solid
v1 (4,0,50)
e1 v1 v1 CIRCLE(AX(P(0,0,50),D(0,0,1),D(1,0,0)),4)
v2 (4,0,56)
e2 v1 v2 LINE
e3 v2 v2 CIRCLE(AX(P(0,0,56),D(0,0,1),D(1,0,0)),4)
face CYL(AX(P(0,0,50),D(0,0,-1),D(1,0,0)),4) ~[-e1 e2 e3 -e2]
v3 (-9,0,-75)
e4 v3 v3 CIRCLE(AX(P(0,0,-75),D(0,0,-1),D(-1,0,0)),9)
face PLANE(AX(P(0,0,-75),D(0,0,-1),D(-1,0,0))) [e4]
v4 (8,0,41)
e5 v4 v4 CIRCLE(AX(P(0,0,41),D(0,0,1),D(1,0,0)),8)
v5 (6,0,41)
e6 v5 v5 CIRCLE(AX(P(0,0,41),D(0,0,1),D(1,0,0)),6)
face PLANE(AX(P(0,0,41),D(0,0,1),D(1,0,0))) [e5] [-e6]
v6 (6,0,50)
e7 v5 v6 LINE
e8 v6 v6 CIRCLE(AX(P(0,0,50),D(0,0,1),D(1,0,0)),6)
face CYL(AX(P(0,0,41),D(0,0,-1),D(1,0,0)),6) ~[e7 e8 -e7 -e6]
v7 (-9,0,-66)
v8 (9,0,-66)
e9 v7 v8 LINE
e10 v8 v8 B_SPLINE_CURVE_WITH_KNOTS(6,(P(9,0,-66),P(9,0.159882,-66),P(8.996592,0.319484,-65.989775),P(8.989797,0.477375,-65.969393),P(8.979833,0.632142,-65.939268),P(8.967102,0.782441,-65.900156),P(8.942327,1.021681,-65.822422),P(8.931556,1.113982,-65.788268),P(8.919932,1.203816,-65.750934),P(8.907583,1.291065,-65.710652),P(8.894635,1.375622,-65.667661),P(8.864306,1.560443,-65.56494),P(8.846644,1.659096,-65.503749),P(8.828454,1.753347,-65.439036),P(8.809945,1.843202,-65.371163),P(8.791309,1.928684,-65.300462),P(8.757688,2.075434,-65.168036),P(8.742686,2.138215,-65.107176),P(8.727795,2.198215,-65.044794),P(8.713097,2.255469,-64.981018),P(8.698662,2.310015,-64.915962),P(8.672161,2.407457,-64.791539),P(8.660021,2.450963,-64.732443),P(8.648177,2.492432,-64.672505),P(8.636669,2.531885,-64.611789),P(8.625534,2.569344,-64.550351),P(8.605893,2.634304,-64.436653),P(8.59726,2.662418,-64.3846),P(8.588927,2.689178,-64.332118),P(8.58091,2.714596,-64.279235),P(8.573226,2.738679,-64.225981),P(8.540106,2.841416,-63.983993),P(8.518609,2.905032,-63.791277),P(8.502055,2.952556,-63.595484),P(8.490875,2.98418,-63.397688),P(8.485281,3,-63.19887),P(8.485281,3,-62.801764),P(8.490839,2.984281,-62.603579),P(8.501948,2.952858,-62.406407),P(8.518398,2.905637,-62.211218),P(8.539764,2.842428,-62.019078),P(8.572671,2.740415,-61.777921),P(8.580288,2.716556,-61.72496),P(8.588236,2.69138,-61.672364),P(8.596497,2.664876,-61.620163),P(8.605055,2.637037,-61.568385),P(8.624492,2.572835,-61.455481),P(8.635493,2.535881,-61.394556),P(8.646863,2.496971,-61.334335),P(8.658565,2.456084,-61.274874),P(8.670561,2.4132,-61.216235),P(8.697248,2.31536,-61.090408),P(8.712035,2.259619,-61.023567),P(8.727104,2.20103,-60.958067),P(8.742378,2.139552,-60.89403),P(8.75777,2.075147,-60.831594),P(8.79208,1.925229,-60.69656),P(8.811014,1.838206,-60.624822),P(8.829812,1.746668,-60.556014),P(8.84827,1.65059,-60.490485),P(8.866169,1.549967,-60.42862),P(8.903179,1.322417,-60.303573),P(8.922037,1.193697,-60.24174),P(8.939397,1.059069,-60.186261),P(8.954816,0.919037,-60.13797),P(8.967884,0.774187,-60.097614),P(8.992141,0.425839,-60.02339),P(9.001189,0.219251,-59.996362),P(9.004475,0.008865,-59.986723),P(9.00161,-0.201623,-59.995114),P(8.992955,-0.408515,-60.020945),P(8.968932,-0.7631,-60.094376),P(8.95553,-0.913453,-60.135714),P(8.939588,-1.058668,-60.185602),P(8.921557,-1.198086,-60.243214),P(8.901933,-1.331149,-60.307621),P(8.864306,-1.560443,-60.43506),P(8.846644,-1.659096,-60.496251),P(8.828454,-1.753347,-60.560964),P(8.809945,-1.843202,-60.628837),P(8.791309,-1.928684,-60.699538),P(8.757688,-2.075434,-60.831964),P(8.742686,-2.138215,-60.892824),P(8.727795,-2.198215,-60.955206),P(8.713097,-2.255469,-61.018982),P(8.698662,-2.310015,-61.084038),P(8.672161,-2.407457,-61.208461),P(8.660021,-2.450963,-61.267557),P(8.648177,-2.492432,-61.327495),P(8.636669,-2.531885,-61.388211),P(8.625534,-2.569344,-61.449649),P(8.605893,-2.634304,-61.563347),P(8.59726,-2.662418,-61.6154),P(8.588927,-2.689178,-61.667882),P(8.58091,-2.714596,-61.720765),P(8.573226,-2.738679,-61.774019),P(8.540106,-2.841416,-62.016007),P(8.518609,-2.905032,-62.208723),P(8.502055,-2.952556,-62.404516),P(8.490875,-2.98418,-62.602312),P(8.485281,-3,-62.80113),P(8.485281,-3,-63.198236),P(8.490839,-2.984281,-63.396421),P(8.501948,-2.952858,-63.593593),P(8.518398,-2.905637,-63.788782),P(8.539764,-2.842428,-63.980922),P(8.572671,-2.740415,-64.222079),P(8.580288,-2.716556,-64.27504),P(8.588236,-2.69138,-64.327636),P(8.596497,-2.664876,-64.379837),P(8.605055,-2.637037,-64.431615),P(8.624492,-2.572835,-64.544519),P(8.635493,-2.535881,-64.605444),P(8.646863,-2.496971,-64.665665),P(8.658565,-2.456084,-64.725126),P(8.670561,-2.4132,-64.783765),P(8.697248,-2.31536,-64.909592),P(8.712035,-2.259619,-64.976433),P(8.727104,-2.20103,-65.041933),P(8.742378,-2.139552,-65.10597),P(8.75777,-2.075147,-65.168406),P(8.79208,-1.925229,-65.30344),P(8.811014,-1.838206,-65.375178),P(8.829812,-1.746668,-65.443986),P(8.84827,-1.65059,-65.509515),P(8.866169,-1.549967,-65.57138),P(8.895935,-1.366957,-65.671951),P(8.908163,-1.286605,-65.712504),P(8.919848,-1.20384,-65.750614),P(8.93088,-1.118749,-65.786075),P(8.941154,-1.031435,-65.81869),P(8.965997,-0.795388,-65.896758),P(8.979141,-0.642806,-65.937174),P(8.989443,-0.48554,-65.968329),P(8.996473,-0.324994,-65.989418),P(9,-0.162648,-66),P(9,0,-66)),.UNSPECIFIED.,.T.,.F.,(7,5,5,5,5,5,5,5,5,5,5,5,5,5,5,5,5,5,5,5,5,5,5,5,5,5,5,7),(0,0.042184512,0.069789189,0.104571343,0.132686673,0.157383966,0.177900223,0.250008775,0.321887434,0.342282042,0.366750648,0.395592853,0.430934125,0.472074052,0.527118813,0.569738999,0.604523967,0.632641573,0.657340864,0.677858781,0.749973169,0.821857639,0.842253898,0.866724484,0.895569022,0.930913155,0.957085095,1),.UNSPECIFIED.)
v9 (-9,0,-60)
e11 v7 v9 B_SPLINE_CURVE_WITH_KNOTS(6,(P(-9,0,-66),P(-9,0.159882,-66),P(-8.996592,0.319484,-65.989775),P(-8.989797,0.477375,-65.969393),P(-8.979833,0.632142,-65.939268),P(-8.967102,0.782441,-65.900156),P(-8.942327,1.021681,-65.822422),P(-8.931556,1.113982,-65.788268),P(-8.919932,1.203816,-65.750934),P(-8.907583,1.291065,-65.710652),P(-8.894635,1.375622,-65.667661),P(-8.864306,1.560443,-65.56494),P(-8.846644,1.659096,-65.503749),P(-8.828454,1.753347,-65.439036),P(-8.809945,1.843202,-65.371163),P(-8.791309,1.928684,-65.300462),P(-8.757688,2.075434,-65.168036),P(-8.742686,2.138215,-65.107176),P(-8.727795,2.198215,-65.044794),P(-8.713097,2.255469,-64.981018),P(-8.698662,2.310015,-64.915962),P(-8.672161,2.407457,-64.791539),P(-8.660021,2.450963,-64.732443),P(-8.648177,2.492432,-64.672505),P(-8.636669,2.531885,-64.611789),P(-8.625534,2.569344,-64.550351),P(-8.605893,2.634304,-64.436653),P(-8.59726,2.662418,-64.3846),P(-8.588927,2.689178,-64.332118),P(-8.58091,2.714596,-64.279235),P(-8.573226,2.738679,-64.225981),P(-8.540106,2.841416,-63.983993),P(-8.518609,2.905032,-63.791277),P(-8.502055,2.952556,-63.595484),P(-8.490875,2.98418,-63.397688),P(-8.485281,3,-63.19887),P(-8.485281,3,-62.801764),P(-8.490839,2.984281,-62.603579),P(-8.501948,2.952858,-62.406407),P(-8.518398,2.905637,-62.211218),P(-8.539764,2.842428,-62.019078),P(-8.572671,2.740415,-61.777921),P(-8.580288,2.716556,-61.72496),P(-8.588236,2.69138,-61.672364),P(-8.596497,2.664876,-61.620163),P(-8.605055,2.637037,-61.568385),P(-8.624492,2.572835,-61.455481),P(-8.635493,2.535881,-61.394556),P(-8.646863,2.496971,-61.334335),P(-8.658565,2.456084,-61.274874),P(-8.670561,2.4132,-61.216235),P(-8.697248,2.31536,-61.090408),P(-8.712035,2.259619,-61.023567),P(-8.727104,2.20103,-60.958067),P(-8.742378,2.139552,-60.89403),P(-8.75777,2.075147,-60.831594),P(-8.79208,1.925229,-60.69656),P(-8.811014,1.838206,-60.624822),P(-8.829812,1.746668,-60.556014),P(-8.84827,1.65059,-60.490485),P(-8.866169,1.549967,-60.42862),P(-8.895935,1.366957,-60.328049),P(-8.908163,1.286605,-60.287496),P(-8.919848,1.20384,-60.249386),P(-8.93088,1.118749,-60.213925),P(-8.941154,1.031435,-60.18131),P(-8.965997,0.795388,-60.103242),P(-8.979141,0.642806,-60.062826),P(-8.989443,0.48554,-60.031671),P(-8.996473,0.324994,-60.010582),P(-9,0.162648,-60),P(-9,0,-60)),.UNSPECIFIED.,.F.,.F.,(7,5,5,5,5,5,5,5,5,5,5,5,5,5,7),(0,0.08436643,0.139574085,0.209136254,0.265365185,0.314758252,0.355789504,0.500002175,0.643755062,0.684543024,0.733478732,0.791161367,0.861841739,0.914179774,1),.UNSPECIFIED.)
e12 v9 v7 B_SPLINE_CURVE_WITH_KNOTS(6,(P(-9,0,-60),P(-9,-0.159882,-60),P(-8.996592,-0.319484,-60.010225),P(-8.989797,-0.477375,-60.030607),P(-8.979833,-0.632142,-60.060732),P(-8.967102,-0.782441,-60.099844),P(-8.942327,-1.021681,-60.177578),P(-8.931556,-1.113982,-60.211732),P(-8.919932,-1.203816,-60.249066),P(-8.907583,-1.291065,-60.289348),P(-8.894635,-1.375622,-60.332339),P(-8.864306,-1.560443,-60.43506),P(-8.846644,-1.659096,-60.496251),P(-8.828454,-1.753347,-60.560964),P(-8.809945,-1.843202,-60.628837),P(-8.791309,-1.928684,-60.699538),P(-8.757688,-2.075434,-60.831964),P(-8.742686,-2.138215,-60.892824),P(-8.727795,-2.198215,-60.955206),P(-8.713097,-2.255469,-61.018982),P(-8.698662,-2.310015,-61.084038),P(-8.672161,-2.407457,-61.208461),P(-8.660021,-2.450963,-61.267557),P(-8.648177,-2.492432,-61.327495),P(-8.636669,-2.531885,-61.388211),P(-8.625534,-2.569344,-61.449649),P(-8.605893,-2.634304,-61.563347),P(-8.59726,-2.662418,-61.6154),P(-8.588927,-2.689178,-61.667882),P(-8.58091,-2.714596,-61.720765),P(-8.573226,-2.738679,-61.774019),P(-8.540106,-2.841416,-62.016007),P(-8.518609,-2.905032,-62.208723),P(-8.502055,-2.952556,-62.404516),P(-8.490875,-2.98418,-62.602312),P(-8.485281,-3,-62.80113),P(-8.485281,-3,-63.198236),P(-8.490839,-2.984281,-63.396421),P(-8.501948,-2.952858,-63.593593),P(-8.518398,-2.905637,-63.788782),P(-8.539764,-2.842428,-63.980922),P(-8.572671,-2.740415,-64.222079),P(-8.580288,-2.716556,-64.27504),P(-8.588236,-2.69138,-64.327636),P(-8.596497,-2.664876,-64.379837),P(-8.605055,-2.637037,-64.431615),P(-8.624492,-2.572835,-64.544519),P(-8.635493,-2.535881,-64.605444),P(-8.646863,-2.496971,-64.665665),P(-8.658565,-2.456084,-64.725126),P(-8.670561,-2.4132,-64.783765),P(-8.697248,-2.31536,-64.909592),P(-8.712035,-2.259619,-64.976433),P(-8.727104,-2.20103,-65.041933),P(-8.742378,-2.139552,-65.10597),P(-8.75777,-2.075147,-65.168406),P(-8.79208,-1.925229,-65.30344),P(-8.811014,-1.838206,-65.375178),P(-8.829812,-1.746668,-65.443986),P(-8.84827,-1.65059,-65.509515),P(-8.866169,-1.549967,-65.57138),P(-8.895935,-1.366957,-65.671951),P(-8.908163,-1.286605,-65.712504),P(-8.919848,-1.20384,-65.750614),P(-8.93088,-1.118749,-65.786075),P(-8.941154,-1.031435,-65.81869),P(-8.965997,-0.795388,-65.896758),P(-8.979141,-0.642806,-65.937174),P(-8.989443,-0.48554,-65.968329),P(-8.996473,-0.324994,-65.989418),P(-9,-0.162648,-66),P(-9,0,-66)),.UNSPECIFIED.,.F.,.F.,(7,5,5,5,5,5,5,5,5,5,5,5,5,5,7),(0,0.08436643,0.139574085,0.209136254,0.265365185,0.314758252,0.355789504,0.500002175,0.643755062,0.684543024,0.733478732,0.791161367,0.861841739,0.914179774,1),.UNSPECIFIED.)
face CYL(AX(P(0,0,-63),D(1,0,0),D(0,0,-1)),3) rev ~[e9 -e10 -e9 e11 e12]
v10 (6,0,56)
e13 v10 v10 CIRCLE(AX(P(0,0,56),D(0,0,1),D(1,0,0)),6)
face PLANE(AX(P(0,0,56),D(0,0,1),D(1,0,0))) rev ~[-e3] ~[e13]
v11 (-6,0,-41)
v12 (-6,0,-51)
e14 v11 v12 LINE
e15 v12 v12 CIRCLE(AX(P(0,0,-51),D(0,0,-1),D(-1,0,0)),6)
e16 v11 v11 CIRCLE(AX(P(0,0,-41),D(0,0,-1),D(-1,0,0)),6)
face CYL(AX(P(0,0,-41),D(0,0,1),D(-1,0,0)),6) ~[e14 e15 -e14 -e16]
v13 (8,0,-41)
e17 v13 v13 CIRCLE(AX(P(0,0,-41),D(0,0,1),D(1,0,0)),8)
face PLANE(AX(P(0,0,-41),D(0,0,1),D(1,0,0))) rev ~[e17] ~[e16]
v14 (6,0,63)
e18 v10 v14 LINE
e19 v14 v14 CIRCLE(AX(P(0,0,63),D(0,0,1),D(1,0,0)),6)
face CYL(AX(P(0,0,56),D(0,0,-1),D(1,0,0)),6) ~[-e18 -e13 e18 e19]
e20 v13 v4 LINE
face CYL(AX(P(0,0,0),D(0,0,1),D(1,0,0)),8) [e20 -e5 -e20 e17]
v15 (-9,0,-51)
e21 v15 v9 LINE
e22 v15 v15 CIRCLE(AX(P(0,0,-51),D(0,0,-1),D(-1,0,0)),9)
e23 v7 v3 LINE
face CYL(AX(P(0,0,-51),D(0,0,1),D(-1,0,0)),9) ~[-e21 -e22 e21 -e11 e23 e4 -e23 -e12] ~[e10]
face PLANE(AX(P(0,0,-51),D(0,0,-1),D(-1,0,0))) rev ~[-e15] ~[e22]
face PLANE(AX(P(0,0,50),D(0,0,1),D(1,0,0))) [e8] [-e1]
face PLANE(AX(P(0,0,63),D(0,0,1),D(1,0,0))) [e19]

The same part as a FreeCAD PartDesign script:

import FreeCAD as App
import Part
import Sketcher
from FreeCAD import Vector

doc = App.newDocument("Part")
body = doc.addObject("PartDesign::Body", "Body")

# Sketch on XY plane
sketch1 = body.newObject("Sketcher::SketchObject", "Sketch")
sketch1.AttachmentSupport = (doc.getObject("XY_Plane"), [""])
sketch1.MapMode = "FlatFace"
sketch1.addGeometry(Part.Circle(Vector(0, 0, 0), Vector(0, 0, 1), 8), False)
sketch1.addConstraint(Sketcher.Constraint("Coincident", 0, 3, -1, 1))
sketch1.addConstraint(Sketcher.Constraint("Diameter", 0, 16.0))
pad1 = body.newObject("PartDesign::Pad", "Pad")
pad1.Profile = sketch1
pad1.Length = 82
pad1.Midplane = True

# Sketch on XY plane
sketch2 = body.newObject("Sketcher::SketchObject", "Sketch001")
sketch2.AttachmentSupport = (doc.getObject("XY_Plane"), [""])
sketch2.MapMode = "FlatFace"
sketch2.AttachmentOffset = App.Placement(Vector(0, 0, -41), App.Rotation())
sketch2.addGeometry(Part.Circle(Vector(0, 0, 0), Vector(0, 0, 1), 6), False)
sketch2.addConstraint(Sketcher.Constraint("Coincident", 0, 3, -1, 1))
sketch2.addConstraint(Sketcher.Constraint("Diameter", 0, 12.0))
pad2 = body.newObject("PartDesign::Pad", "Pad001")
pad2.Profile = sketch2
pad2.Length = 10
pad2.Reversed = True

# Sketch on XY plane
sketch3 = body.newObject("Sketcher::SketchObject", "Sketch002")
sketch3.AttachmentSupport = (doc.getObject("XY_Plane"), [""])
sketch3.MapMode = "FlatFace"
sketch3.AttachmentOffset = App.Placement(Vector(0, 0, -51), App.Rotation())
sketch3.addGeometry(Part.Circle(Vector(0, 0, 0), Vector(0, 0, 1), 9), False)
sketch3.addConstraint(Sketcher.Constraint("Coincident", 0, 3, -1, 1))
sketch3.addConstraint(Sketcher.Constraint("Diameter", 0, 18.0))
pad3 = body.newObject("PartDesign::Pad", "Pad002")
pad3.Profile = sketch3
pad3.Length = 24
pad3.Reversed = True

# Sketch on XY plane
sketch4 = body.newObject("Sketcher::SketchObject", "Sketch003")
sketch4.AttachmentSupport = (doc.getObject("XY_Plane"), [""])
sketch4.MapMode = "FlatFace"
sketch4.AttachmentOffset = App.Placement(Vector(0, 0, 41), App.Rotation())
sketch4.addGeometry(Part.Circle(Vector(0, 0, 0), Vector(0, 0, 1), 6), False)
sketch4.addConstraint(Sketcher.Constraint("Coincident", 0, 3, -1, 1))
sketch4.addConstraint(Sketcher.Constraint("Diameter", 0, 12.0))
pad4 = body.newObject("PartDesign::Pad", "Pad003")
pad4.Profile = sketch4
pad4.Length = 9

# Sketch on XY plane
sketch5 = body.newObject("Sketcher::SketchObject", "Sketch004")
sketch5.AttachmentSupport = (doc.getObject("XY_Plane"), [""])
sketch5.MapMode = "FlatFace"
sketch5.AttachmentOffset = App.Placement(Vector(0, 0, 50), App.Rotation())
sketch5.addGeometry(Part.Circle(Vector(0, 0, 0), Vector(0, 0, 1), 4), False)
sketch5.addConstraint(Sketcher.Constraint("Coincident", 0, 3, -1, 1))
sketch5.addConstraint(Sketcher.Constraint("Diameter", 0, 8.0))
pad5 = body.newObject("PartDesign::Pad", "Pad004")
pad5.Profile = sketch5
pad5.Length = 6

# Sketch on XY plane
sketch6 = body.newObject("Sketcher::SketchObject", "Sketch005")
sketch6.AttachmentSupport = (doc.getObject("XY_Plane"), [""])
sketch6.MapMode = "FlatFace"
sketch6.AttachmentOffset = App.Placement(Vector(0, 0, 56), App.Rotation())
sketch6.addGeometry(Part.Circle(Vector(0, 0, 0), Vector(0, 0, 1), 6), False)
sketch6.addConstraint(Sketcher.Constraint("Coincident", 0, 3, -1, 1))
sketch6.addConstraint(Sketcher.Constraint("Diameter", 0, 12.0))
pad6 = body.newObject("PartDesign::Pad", "Pad005")
pad6.Profile = sketch6
pad6.Length = 7

# Sketch on YZ plane
sketch7 = body.newObject("Sketcher::SketchObject", "Sketch006")
sketch7.AttachmentSupport = (doc.getObject("YZ_Plane"), [""])
sketch7.MapMode = "FlatFace"
sketch7.addGeometry(Part.Circle(Vector(0, -63, 0), Vector(0, 0, 1), 3), False)
sketch7.addConstraint(Sketcher.Constraint("PointOnObject", 0, 3, -2))
sketch7.addConstraint(Sketcher.Constraint("Diameter", 0, 6.0))
sketch7.addConstraint(Sketcher.Constraint("DistanceY", 0, 3, -1, 1, 63.0))
pocket1 = body.newObject("PartDesign::Pocket", "Pocket")
pocket1.Profile = sketch7
pocket1.Length = 50
pocket1.Midplane = True

doc.recompute()
